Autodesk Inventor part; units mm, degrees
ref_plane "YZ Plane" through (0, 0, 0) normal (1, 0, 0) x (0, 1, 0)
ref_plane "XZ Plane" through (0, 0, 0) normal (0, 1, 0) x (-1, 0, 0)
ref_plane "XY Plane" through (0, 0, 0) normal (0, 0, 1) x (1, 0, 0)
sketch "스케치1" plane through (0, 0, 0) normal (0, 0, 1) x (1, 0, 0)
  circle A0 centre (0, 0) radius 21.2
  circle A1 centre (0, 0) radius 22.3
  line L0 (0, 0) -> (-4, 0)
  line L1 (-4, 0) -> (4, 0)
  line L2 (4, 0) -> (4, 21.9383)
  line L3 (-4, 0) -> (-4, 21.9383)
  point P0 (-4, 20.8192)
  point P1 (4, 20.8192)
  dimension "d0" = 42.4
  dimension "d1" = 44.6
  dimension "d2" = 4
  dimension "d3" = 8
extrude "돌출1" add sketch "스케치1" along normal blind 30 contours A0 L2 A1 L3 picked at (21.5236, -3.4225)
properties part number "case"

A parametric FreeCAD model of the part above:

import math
import FreeCAD as App
import Part
import Sketcher

doc = App.newDocument("Part")
params = doc.addObject("Spreadsheet::Sheet", "Params")
for row, (alias, value) in enumerate([
    ("sketch1_radius", "21.2 mm"),
    ("sketch1_radius2", "22.3 mm"),
    ("pad1_length", "30 mm"),
], start=1):
    params.set(f"A{row}", alias)
    params.set(f"B{row}", "=" + value)
    params.setAlias(f"B{row}", alias)

body = doc.addObject("PartDesign::Body", "Body")

sketch1 = body.newObject("Sketcher::SketchObject", "Sketch")
sketch1.AttachmentSupport = (doc.getObject("XY_Plane"), [""])
sketch1.MapMode = "FlatFace"
sketch1.addGeometry(Part.ArcOfCircle(Part.Circle(App.Vector(0, 0, 0), App.Vector(0, 0, 1), 21.2), math.radians(101), math.radians(439)), False)
sketch1.addGeometry(Part.LineSegment(App.Vector(-4, 20.8, 0), App.Vector(-4, 21.9, 0)), False)
sketch1.addGeometry(Part.ArcOfCircle(Part.Circle(App.Vector(0, 0, 0), App.Vector(0, 0, 1), 22.3), math.radians(100), math.radians(440)), False)
sketch1.addGeometry(Part.LineSegment(App.Vector(4, 21.9, 0), App.Vector(4, 20.8, 0)), False)
sketch1.addConstraint(Sketcher.Constraint("Coincident", 0, 1, 1, 1))
sketch1.addConstraint(Sketcher.Constraint("Coincident", 1, 2, 2, 1))
sketch1.addConstraint(Sketcher.Constraint("Coincident", 2, 2, 3, 1))
sketch1.addConstraint(Sketcher.Constraint("Coincident", 3, 2, 0, 2))
sketch1.addConstraint(Sketcher.Constraint("Vertical", 1))
sketch1.addConstraint(Sketcher.Constraint("Vertical", 3))
sketch1.addConstraint(Sketcher.Constraint("Coincident", 0, 3, -1, 1))
sketch1.addConstraint(Sketcher.Constraint("Coincident", 2, 3, -1, 1))
sketch1.addConstraint(Sketcher.Constraint("Horizontal", 1, 2, 2, 2))
sketch1.addConstraint(Sketcher.Constraint("Radius", 0, 21.2))
sketch1.addConstraint(Sketcher.Constraint("Radius", 2, 22.3))
sketch1.addConstraint(Sketcher.Constraint("DistanceX", 0, 1, -1, 1, 4.0))
sketch1.setExpression("Constraints[9]", "Params.sketch1_radius")
sketch1.setExpression("Constraints[10]", "Params.sketch1_radius2")
pad1 = body.newObject("PartDesign::Pad", "Pad")
pad1.Profile = sketch1
pad1.setExpression("Length", "Params.pad1_length")

doc.recompute()
